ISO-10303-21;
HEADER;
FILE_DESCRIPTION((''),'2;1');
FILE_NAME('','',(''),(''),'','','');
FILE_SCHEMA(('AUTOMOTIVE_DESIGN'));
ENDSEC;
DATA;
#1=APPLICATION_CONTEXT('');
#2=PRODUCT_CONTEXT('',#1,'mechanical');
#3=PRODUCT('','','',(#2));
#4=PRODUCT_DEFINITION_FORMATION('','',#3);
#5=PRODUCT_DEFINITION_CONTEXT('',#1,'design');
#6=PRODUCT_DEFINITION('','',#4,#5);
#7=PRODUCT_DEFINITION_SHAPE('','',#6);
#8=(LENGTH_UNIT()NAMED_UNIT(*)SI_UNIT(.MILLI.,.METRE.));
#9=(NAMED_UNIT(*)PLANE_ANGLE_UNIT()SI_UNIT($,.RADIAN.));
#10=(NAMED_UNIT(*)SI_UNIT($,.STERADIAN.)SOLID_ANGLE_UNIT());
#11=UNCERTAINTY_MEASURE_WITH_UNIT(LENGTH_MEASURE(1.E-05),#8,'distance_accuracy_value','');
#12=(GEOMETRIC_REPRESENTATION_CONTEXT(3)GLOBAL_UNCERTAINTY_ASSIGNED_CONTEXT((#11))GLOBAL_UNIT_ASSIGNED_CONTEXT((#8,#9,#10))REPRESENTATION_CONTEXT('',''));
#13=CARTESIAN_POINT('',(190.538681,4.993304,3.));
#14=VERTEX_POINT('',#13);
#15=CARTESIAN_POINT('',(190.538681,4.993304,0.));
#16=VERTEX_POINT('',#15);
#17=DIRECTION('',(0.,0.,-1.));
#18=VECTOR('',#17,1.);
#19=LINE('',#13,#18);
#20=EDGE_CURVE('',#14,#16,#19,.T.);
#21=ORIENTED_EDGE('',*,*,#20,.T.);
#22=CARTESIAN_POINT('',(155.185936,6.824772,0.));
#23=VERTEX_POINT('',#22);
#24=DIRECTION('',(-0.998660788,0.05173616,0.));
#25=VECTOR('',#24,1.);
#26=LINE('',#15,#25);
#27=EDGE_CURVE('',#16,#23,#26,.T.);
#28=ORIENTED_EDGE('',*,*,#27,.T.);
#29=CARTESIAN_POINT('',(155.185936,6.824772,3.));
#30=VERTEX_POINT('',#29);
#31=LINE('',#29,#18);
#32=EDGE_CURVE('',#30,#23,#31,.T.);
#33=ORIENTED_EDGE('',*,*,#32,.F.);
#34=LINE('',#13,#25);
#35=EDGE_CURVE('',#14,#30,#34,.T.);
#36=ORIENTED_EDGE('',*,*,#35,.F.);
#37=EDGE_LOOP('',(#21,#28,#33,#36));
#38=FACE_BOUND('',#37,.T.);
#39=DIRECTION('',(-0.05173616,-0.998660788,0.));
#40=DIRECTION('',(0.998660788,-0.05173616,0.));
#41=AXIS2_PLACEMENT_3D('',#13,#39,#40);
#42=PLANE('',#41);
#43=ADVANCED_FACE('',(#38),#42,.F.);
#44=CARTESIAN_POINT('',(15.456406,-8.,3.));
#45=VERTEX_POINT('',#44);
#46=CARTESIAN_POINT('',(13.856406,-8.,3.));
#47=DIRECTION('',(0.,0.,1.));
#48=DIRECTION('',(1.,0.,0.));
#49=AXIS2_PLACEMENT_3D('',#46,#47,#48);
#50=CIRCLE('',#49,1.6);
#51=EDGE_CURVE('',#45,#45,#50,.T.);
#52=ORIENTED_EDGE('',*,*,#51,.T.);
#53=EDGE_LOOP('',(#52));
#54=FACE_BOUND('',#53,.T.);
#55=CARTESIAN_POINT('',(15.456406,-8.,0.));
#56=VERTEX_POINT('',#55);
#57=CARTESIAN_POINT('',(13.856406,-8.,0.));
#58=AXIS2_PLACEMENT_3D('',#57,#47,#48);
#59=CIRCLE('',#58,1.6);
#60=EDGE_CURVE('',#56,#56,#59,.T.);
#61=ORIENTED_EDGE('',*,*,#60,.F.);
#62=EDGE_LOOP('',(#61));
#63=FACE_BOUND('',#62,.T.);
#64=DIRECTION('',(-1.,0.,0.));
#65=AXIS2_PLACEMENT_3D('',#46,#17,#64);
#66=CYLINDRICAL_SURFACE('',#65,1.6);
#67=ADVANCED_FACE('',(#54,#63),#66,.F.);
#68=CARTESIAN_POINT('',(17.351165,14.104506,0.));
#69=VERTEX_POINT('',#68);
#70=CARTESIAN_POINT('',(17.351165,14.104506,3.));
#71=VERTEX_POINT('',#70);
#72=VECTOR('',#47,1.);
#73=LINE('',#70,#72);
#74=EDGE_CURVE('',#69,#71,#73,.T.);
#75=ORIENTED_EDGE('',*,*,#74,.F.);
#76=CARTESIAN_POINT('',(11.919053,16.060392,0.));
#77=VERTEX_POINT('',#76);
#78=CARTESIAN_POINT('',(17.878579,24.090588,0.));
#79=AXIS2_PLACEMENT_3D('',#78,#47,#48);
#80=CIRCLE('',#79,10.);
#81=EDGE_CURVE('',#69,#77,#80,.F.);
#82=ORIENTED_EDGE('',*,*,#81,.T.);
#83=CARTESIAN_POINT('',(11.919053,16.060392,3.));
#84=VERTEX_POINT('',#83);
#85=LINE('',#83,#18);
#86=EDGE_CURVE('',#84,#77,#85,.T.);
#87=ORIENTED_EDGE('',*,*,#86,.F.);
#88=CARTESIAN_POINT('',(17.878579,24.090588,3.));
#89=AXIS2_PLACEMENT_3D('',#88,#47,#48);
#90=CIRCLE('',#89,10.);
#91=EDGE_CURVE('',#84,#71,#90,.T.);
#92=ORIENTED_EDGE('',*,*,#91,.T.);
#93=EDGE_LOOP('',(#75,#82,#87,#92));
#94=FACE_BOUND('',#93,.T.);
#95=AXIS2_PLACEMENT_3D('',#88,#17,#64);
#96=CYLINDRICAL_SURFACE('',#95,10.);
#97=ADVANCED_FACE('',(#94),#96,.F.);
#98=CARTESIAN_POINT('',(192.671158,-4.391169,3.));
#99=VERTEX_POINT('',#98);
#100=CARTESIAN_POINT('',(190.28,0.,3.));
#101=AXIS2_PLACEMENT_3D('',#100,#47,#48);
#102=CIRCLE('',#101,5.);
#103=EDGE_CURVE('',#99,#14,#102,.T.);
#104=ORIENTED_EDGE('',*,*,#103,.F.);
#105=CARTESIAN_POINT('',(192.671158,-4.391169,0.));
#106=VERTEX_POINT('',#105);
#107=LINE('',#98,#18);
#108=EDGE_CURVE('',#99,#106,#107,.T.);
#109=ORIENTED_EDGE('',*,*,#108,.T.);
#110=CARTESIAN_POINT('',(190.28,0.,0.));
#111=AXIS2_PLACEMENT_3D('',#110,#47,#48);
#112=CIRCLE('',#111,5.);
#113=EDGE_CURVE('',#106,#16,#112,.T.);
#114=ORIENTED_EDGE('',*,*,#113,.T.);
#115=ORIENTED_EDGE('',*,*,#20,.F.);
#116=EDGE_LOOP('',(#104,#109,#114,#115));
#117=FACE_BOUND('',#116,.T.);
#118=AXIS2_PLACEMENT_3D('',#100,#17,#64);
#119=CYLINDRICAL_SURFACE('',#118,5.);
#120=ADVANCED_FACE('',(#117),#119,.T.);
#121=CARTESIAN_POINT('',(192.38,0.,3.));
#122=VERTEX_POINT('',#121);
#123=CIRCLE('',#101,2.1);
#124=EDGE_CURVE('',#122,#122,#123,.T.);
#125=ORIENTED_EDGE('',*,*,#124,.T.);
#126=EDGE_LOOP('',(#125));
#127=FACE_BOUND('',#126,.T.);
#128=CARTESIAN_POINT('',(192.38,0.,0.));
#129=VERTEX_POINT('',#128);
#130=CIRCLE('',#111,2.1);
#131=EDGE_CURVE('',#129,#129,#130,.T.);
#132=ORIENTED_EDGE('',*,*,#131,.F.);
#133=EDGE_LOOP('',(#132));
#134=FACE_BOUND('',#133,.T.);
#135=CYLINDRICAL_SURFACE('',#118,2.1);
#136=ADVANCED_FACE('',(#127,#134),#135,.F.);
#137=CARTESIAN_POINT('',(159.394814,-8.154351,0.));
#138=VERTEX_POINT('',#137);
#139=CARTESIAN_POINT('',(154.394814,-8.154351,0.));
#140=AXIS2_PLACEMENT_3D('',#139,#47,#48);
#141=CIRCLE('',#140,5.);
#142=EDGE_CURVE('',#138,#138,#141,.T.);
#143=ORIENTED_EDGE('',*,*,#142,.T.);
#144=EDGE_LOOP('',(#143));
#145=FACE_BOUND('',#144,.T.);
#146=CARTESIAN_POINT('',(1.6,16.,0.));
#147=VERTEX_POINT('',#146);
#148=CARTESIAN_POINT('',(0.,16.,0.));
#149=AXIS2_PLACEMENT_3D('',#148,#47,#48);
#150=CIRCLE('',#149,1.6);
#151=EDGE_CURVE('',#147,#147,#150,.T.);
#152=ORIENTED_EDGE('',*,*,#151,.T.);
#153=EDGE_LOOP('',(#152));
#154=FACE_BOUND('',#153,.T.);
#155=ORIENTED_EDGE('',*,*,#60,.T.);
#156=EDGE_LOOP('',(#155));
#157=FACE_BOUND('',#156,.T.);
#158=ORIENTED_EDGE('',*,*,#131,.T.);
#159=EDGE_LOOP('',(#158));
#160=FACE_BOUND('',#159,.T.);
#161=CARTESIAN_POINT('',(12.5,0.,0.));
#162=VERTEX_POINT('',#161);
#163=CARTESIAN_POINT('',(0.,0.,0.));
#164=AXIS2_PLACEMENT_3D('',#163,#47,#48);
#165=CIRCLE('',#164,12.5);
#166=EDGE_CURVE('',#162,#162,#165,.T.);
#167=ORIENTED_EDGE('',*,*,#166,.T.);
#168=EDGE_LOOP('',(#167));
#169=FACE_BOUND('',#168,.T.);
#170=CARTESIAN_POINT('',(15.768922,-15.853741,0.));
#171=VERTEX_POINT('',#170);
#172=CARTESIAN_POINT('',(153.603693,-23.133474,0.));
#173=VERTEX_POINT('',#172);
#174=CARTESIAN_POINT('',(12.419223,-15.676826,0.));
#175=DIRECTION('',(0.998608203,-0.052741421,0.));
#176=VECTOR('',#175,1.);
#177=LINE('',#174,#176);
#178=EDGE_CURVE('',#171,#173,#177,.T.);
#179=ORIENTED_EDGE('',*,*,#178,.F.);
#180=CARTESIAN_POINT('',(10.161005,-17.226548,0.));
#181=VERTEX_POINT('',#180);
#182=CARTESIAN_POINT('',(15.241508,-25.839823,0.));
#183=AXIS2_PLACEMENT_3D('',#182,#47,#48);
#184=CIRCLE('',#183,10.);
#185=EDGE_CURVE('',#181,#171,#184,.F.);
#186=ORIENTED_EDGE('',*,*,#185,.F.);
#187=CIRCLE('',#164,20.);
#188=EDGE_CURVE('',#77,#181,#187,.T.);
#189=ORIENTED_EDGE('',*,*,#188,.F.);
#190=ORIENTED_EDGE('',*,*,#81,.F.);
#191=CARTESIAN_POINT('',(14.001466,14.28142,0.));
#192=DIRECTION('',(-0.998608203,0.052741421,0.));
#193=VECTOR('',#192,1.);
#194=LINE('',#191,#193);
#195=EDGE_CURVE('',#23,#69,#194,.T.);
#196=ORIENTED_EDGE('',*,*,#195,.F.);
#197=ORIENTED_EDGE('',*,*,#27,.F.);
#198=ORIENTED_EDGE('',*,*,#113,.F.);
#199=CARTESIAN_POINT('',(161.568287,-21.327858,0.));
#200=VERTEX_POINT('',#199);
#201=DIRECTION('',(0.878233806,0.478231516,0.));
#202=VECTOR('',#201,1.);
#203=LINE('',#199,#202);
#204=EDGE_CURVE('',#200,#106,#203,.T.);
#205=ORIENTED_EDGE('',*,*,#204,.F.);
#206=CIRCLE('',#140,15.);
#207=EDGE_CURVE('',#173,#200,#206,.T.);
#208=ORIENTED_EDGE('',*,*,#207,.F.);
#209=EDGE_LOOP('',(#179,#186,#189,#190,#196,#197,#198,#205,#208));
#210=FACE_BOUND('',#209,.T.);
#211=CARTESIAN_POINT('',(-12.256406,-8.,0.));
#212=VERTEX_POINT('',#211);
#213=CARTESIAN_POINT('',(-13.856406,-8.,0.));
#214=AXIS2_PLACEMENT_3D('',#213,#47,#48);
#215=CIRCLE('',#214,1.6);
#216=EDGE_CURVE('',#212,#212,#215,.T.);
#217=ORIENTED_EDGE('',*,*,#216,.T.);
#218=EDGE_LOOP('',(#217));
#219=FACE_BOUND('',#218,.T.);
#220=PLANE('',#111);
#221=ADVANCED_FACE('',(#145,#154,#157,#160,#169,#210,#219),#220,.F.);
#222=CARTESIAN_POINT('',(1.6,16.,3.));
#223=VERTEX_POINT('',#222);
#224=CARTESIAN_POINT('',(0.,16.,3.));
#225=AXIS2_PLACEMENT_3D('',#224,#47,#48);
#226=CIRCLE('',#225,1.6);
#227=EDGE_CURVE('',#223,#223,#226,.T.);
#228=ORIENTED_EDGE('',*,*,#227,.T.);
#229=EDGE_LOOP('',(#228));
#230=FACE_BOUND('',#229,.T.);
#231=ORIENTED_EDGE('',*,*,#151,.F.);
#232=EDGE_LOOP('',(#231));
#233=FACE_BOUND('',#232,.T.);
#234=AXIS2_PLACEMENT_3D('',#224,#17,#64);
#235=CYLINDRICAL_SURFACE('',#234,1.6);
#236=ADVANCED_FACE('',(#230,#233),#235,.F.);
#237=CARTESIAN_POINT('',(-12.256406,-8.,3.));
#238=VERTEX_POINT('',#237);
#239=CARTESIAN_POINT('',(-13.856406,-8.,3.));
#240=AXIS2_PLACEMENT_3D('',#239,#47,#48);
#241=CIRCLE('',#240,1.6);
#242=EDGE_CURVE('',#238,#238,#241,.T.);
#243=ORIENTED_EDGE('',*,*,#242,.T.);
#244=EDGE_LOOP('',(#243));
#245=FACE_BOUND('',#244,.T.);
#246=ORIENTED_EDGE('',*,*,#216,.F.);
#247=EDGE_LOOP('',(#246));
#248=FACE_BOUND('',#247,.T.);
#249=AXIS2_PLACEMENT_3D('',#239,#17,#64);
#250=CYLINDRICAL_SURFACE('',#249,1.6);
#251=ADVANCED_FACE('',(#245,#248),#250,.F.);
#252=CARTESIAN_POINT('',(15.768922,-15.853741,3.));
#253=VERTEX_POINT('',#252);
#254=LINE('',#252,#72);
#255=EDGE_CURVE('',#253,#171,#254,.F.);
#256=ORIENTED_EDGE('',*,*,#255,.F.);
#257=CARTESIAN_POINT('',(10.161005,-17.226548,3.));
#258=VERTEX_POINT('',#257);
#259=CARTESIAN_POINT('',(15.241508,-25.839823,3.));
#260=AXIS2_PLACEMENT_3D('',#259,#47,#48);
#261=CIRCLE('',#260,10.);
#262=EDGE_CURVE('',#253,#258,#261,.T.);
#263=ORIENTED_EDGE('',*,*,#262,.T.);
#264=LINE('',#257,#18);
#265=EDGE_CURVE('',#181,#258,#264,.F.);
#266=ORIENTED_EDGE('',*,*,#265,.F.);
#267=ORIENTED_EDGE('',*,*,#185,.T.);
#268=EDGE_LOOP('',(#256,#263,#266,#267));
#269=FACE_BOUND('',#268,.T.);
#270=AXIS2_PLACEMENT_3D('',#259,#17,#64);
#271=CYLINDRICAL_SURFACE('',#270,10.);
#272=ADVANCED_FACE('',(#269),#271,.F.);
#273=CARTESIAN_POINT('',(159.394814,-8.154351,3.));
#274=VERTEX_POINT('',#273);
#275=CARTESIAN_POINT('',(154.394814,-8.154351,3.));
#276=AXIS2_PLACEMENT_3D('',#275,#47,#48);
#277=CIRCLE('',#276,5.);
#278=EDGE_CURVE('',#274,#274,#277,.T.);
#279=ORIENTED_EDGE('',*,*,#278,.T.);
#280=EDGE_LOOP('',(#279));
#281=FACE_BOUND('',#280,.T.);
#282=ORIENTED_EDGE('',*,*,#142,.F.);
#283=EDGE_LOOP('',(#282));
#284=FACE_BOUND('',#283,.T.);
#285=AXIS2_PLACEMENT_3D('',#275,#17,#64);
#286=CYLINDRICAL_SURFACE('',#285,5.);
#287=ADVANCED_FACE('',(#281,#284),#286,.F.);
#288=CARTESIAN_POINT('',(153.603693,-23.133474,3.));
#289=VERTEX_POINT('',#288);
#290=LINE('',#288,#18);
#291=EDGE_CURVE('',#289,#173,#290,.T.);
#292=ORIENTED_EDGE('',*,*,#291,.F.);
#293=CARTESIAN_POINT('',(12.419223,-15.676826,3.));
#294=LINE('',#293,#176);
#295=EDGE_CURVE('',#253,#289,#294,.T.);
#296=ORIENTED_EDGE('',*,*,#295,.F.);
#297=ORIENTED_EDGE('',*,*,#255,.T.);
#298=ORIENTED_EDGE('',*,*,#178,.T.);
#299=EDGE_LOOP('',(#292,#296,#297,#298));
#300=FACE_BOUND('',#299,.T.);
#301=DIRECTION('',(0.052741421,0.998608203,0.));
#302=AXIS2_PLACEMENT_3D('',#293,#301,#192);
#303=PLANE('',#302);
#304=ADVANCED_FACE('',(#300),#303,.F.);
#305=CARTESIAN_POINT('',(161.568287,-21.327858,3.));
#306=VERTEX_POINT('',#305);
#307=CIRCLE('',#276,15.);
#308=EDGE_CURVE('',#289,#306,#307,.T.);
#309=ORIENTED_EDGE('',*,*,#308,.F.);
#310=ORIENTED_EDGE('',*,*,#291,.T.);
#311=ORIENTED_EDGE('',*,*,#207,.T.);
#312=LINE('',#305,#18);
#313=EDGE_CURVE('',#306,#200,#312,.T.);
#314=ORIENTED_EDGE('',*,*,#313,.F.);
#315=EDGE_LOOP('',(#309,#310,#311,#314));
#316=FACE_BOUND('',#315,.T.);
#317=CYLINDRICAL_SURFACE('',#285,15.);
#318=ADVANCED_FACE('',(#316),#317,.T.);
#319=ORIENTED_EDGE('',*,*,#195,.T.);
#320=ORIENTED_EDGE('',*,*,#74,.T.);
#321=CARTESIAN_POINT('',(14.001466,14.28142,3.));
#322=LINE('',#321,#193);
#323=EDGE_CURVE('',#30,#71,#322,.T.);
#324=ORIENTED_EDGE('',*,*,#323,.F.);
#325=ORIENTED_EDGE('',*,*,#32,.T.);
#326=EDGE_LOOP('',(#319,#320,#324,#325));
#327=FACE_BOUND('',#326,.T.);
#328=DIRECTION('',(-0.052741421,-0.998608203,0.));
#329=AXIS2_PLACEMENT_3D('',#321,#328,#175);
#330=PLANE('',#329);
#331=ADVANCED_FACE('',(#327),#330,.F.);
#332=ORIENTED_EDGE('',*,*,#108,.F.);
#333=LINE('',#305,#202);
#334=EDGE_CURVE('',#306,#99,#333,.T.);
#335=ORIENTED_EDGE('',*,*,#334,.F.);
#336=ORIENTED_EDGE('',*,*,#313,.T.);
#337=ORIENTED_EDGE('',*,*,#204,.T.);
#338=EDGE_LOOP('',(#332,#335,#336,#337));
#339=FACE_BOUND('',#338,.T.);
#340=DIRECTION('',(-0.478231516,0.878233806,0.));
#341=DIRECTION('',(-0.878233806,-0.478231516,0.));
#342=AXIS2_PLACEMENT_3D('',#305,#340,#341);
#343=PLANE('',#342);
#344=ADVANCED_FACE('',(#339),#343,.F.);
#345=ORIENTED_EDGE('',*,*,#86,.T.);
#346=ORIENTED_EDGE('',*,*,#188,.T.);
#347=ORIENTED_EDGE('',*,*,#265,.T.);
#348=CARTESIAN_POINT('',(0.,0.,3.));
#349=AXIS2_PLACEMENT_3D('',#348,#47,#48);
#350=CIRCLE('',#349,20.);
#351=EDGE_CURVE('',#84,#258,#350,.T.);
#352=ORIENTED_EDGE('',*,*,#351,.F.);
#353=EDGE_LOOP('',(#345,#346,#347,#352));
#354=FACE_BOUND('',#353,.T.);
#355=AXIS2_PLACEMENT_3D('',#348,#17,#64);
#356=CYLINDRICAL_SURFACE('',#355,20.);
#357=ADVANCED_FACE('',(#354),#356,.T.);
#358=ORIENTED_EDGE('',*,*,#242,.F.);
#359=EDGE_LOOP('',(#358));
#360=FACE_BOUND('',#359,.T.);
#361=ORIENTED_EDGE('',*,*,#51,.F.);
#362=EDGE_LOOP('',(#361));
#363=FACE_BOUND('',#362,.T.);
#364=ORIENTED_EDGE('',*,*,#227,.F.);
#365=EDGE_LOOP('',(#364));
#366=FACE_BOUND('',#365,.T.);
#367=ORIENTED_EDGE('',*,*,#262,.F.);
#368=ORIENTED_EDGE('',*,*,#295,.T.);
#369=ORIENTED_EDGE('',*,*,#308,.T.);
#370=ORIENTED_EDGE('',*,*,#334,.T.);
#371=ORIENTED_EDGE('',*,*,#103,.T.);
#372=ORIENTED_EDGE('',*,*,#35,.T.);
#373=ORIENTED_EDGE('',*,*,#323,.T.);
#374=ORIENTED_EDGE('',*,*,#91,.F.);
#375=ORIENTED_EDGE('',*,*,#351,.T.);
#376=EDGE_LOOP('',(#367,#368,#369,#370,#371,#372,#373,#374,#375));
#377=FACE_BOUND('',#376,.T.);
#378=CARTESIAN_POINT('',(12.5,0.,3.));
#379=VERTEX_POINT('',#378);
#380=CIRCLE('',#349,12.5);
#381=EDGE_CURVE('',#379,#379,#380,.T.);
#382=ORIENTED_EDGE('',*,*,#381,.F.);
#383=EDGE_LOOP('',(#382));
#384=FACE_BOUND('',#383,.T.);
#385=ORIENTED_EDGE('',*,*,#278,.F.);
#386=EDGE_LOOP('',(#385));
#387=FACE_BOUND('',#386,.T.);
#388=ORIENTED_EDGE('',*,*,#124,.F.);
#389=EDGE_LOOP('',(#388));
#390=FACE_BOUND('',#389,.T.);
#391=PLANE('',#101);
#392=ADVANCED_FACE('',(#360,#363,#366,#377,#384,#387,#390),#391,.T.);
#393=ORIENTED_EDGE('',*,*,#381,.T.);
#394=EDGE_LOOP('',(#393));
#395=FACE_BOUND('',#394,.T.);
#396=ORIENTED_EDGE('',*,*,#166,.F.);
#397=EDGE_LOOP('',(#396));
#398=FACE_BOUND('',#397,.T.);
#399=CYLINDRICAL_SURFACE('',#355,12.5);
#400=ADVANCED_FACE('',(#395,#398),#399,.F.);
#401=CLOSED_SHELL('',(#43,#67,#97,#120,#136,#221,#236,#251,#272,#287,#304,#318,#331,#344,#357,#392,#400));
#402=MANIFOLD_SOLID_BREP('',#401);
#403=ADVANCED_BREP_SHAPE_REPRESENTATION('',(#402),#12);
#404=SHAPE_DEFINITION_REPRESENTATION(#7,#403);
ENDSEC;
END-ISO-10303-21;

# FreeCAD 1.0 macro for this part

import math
import FreeCAD as App
import Part
import Sketcher


def edges_at(feature, points):
    """Names of the edges that pass closest to the given points."""
    edges = feature.Shape.Edges
    near = lambda p: min(range(len(edges)), key=lambda i: edges[i].distToShape(Part.Vertex(*p))[0])
    return sorted({f"Edge{near(p) + 1}" for p in points})

doc = App.newDocument("Part")
body = doc.addObject("PartDesign::Body", "Body")

# Sketch on XY plane
sketch1 = doc.addObject("Sketcher::SketchObject", "Sketch")
body.addObject(sketch1)
sketch1.AttachmentSupport = (doc.XY_Plane, [""])
sketch1.MapMode = "FlatFace"
sketch1.addGeometry(Part.LineSegment(App.Vector(12.419223, -15.676826, 0), App.Vector(153.603693, -23.133474, 0)), False)
sketch1.addGeometry(Part.ArcOfCircle(Part.Circle(App.Vector(154.394814, -8.154351, 0), App.Vector(0, 0, 1), 15), math.radians(-93.023264), math.radians(-61.430037)), False)
sketch1.addGeometry(Part.LineSegment(App.Vector(161.568287, -21.327858, 0), App.Vector(192.671158, -4.391169, 0)), False)
sketch1.addGeometry(Part.ArcOfCircle(Part.Circle(App.Vector(190.28, 0, 0), App.Vector(0, 0, 1), 5), math.radians(-61.430037), math.radians(87.034412)), False)
sketch1.addGeometry(Part.LineSegment(App.Vector(190.538681, 4.993304, 0), App.Vector(155.185936, 6.824772, 0)), False)
sketch1.addGeometry(Part.LineSegment(App.Vector(155.185936, 6.824772, 0), App.Vector(14.001466, 14.28142, 0)), False)
sketch1.addGeometry(Part.ArcOfCircle(Part.Circle(App.Vector(0, 0, 0), App.Vector(0, 0, 1), 20), math.radians(45.567114), math.radians(308.386359)), False)
sketch1.addGeometry(Part.Circle(App.Vector(-13.856406, -8, 0), App.Vector(0, 0, 1), 1.6), False)
sketch1.addGeometry(Part.Circle(App.Vector(13.856406, -8, 0), App.Vector(0, 0, 1), 1.6), False)
sketch1.addGeometry(Part.Circle(App.Vector(0, 0, 0), App.Vector(0, 0, 1), 12.5), False)
sketch1.addGeometry(Part.Circle(App.Vector(154.394814, -8.154351, 0), App.Vector(0, 0, 1), 5), False)
sketch1.addGeometry(Part.Circle(App.Vector(190.28, 0, 0), App.Vector(0, 0, 1), 2.1), False)
sketch1.addGeometry(Part.Circle(App.Vector(0, 16, 0), App.Vector(0, 0, 1), 1.6), False)
sketch1.addConstraint(Sketcher.Constraint("Coincident", 0, 2, 1, 1))
sketch1.addConstraint(Sketcher.Constraint("Coincident", 1, 2, 2, 1))
sketch1.addConstraint(Sketcher.Constraint("Coincident", 2, 2, 3, 1))
sketch1.addConstraint(Sketcher.Constraint("Coincident", 3, 2, 4, 1))
sketch1.addConstraint(Sketcher.Constraint("Coincident", 4, 2, 5, 1))
sketch1.addConstraint(Sketcher.Constraint("Coincident", 5, 2, 6, 1))
sketch1.addConstraint(Sketcher.Constraint("Coincident", 6, 2, 0, 1))
sketch1.addConstraint(Sketcher.Constraint("Coincident", 6, 3, -1, 1))
sketch1.addConstraint(Sketcher.Constraint("Coincident", 9, 3, -1, 1))
sketch1.addConstraint(Sketcher.Constraint("Coincident", 10, 3, 1, 3))
sketch1.addConstraint(Sketcher.Constraint("Coincident", 11, 3, 3, 3))
sketch1.addConstraint(Sketcher.Constraint("PointOnObject", 3, 3, -1))
sketch1.addConstraint(Sketcher.Constraint("PointOnObject", 12, 3, -2))
sketch1.addConstraint(Sketcher.Constraint("Diameter", 9, 25.0))
sketch1.addConstraint(Sketcher.Constraint("Diameter", 10, 10.0))
sketch1.addConstraint(Sketcher.Constraint("Radius", 1, 15.0))
sketch1.addConstraint(Sketcher.Constraint("Radius", 3, 5.0))
sketch1.addConstraint(Sketcher.Constraint("Radius", 6, 20.0))
sketch1.addConstraint(Sketcher.Constraint("Diameter", 7, 3.2))
sketch1.addConstraint(Sketcher.Constraint("Diameter", 8, 3.2))
sketch1.addConstraint(Sketcher.Constraint("Diameter", 11, 4.2))
sketch1.addConstraint(Sketcher.Constraint("Diameter", 12, 3.2))
sketch1.addConstraint(Sketcher.Constraint("DistanceY", 7, 3, -1, 1, 8.0))
sketch1.addConstraint(Sketcher.Constraint("DistanceY", 8, 3, -1, 1, 8.0))
sketch1.addConstraint(Sketcher.Constraint("DistanceY", -1, 1, 12, 3, 16.0))
sketch1.addConstraint(Sketcher.Constraint("DistanceX", -1, 1, 3, 3, 190.28))
sketch1.addConstraint(Sketcher.Constraint("Distance", 2, 35.415251))
sketch1.addConstraint(Sketcher.Constraint("DistanceY", 1, 3, -1, 1, 8.154351))
sketch1.addConstraint(Sketcher.Constraint("DistanceY", 1, 2, -1, 1, 21.327858))
sketch1.addConstraint(Sketcher.Constraint("DistanceY", 2, 2, -1, 1, 4.391169))
sketch1.addConstraint(Sketcher.Constraint("DistanceX", -1, 1, 3, 2, 190.538681))
sketch1.addConstraint(Sketcher.Constraint("DistanceY", -1, 1, 4, 2, 6.824772))
sketch1.addConstraint(Sketcher.Constraint("DistanceY", -1, 1, 5, 2, 14.28142))
sketch1.addConstraint(Sketcher.Constraint("DistanceX", 7, 3, 1, 3, 168.251221))
sketch1.addConstraint(Sketcher.Constraint("DistanceX", 0, 2, 10, 3, 0.791121))
sketch1.addConstraint(Sketcher.Constraint("DistanceX", 1, 3, 4, 2, 0.791121))
sketch1.addConstraint(Sketcher.Constraint("DistanceX", 8, 3, 5, 2, 0.14506))
sketch1.addConstraint(Sketcher.Constraint("DistanceX", 7, 3, 6, 2, 26.27563))
pad1 = doc.addObject("PartDesign::Pad", "Pad")
body.addObject(pad1)
pad1.Profile = sketch1
pad1.Length = 3
doc.recompute()

fillet = doc.addObject("PartDesign::Fillet", "Fillet")
body.addObject(fillet)
fillet.Base = (pad1, edges_at(pad1, [(14.001, 14.281, 1.5)]))
fillet.Radius = 10
doc.recompute()

fillet2 = doc.addObject("PartDesign::Fillet", "Fillet001")
body.addObject(fillet2)
fillet2.Base = (fillet, edges_at(fillet, [(12.419, -15.677, 1.5)]))
fillet2.Radius = 10

doc.recompute()
